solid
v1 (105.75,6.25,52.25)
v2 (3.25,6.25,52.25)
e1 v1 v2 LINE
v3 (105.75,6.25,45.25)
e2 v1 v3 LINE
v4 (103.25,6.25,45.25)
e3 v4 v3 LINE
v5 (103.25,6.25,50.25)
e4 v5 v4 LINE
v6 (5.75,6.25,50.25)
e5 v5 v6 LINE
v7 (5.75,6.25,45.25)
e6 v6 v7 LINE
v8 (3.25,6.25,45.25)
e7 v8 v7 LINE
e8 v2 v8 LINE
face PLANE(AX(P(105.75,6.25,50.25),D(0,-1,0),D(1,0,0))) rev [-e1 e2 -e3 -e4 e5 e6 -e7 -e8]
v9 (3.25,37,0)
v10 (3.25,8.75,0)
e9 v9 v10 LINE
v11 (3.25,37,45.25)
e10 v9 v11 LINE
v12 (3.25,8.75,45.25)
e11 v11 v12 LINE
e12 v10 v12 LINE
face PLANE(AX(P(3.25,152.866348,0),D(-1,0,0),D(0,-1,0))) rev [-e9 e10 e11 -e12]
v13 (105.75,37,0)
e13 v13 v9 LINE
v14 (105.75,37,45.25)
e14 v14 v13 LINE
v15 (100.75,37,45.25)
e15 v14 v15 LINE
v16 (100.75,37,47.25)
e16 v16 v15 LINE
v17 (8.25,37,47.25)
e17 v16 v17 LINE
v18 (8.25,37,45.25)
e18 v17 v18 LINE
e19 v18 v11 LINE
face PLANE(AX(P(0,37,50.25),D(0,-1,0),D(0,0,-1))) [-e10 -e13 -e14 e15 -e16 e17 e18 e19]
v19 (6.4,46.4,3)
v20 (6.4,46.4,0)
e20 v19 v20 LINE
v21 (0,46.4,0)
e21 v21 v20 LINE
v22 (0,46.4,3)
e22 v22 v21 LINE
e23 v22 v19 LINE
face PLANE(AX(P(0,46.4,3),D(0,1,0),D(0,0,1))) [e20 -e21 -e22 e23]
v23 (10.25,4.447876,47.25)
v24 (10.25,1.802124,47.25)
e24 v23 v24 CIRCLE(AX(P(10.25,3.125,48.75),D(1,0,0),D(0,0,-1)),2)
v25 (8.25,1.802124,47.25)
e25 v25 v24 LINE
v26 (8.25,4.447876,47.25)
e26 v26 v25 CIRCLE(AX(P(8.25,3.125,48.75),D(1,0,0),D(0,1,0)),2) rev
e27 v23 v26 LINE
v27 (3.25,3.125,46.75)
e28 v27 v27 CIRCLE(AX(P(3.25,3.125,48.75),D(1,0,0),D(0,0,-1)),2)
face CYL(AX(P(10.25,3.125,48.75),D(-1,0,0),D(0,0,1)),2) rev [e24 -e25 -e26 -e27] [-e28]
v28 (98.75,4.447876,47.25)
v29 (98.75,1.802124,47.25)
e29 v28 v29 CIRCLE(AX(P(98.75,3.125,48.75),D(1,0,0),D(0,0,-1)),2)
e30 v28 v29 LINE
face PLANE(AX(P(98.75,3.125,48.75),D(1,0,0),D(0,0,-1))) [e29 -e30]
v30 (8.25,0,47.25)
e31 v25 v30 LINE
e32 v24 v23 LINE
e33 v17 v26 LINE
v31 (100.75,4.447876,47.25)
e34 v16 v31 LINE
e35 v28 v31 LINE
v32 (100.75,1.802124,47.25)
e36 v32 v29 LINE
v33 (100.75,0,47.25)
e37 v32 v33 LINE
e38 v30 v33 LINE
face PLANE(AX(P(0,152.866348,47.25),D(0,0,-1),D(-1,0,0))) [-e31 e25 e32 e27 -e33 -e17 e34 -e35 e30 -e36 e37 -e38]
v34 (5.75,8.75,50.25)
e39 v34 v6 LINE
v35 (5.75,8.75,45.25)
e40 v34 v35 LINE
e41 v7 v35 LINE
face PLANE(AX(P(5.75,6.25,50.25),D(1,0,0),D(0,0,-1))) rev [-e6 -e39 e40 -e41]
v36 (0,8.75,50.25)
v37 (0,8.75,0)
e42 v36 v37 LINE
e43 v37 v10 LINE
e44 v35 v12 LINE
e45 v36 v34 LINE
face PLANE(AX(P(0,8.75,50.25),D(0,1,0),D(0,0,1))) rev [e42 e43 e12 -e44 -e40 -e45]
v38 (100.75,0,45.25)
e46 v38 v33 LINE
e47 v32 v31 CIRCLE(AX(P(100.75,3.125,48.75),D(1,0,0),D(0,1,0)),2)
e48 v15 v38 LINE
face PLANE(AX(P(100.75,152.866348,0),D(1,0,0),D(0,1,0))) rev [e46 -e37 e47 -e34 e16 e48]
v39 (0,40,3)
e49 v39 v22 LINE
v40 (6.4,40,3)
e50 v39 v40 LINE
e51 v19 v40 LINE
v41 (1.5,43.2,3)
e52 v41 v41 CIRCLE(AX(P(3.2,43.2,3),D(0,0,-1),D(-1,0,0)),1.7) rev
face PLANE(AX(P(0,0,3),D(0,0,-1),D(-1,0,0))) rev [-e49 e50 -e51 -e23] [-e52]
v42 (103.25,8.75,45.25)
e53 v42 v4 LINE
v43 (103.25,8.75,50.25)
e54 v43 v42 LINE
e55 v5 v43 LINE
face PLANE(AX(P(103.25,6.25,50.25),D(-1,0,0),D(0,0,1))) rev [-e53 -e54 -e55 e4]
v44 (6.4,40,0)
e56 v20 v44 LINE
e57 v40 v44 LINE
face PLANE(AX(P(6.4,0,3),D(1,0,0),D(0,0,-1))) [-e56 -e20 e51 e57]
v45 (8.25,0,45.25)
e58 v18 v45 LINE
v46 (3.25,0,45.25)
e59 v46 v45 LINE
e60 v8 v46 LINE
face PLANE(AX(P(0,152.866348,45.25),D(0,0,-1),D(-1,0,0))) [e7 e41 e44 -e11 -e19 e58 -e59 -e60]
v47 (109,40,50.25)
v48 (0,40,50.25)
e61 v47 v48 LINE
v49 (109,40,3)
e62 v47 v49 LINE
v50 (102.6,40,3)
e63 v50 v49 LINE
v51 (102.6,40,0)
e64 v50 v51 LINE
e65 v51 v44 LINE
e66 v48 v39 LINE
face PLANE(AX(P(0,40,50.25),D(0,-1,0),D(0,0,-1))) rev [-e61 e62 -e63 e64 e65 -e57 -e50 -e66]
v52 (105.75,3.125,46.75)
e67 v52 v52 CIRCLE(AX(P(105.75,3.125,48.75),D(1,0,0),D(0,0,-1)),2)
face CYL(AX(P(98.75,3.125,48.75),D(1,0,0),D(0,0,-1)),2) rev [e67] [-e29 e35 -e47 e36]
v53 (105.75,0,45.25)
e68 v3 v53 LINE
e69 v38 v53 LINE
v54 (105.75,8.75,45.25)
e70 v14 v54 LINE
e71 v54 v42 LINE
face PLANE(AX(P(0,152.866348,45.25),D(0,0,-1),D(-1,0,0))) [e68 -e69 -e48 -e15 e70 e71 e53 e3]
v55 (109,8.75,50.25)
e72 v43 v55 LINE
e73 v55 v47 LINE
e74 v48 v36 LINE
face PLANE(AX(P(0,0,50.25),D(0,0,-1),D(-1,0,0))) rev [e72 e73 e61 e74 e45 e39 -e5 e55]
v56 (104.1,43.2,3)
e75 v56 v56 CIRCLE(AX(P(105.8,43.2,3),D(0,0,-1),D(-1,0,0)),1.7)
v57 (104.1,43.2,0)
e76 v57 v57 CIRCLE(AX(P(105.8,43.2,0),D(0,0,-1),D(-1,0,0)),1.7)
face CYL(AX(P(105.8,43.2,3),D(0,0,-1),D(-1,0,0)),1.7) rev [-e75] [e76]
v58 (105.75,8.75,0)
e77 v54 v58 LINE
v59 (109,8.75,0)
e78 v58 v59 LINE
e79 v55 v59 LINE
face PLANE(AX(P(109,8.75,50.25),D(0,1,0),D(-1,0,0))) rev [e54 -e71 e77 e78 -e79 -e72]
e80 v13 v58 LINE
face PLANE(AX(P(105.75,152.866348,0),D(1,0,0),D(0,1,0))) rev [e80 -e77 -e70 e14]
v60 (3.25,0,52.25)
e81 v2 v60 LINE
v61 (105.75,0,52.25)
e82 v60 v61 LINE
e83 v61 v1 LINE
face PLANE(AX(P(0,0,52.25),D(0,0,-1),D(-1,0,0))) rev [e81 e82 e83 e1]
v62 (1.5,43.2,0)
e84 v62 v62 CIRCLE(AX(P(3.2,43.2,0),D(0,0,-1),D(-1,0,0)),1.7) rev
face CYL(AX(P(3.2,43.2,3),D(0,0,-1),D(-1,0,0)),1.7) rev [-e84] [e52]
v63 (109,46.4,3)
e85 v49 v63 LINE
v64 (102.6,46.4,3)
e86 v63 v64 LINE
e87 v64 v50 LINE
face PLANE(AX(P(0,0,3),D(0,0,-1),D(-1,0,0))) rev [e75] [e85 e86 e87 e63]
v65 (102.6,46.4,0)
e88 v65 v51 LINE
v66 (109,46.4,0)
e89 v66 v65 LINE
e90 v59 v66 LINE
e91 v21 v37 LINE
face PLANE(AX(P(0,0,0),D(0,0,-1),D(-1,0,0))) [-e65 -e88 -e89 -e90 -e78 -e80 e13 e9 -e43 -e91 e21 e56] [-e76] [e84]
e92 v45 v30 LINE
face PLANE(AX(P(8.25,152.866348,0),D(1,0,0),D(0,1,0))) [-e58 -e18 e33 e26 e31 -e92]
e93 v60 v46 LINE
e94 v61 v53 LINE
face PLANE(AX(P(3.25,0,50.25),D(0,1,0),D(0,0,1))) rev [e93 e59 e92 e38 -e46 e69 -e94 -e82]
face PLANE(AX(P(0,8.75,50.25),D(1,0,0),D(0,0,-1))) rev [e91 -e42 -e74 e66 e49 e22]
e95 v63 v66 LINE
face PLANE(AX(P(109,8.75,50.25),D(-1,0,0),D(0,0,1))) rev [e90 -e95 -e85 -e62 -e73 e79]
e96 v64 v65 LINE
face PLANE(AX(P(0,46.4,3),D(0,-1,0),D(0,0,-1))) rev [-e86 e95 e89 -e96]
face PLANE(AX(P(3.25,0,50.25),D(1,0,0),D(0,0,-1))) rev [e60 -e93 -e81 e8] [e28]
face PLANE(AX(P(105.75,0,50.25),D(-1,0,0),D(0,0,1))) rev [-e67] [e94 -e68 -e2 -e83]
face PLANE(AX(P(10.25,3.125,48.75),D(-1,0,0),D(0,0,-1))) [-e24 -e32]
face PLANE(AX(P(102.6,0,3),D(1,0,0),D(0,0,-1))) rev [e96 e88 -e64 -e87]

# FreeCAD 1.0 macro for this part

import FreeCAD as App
import Part
import Sketcher
from FreeCAD import Vector


def add_polygon(sketch, points):
    """Adds a closed chain of lines whose ends are joined by coincident constraints."""
    first, n = sketch.GeometryCount, len(points)
    for a, b in zip(points, points[1:] + points[:1]):
        sketch.addGeometry(Part.LineSegment(App.Vector(*a, 0), App.Vector(*b, 0)), False)
    for i in range(n):
        sketch.addConstraint(Sketcher.Constraint("Coincident", first + i, 2, first + (i + 1) % n, 1))

doc = App.newDocument("Part")
body = doc.addObject("PartDesign::Body", "Body")

# Sketch on XY plane
sketch1 = body.newObject("Sketcher::SketchObject", "Sketch")
sketch1.AttachmentSupport = (doc.getObject("XY_Plane"), [""])
sketch1.MapMode = "FlatFace"
add_polygon(sketch1, [(3.2, 0), (105.8, 0), (105.8, 6.2), (103.2, 6.2), (103.2, 8.8), (109, 8.8), (109, 40), (0, 40), (0, 8.8), (5.8, 8.8), (5.8, 6.2), (3.2, 6.2)])  # lines 0-11
sketch1.addConstraint([
    Sketcher.Constraint("Horizontal", 0),
    Sketcher.Constraint("Vertical", 1),
    Sketcher.Constraint("Horizontal", 2),
    Sketcher.Constraint("Vertical", 3),
    Sketcher.Constraint("Horizontal", 4),
    Sketcher.Constraint("Vertical", 5),
    Sketcher.Constraint("Horizontal", 6),
    Sketcher.Constraint("Vertical", 7),
    Sketcher.Constraint("Horizontal", 8),
    Sketcher.Constraint("Vertical", 9),
    Sketcher.Constraint("Horizontal", 10),
    Sketcher.Constraint("Vertical", 11),
    Sketcher.Constraint("PointOnObject", 0, 2, -1),
    Sketcher.Constraint("PointOnObject", 6, 2, -2),
    Sketcher.Constraint("Horizontal", 4, 2, 7, 2),
    Sketcher.Constraint("Horizontal", 2, 2, 9, 2),
    Sketcher.Constraint("Equal", 4, 8),
    Sketcher.Constraint("Equal", 2, 10),
    Sketcher.Constraint("Equal", 10, 3),
    Sketcher.Constraint("DistanceX", 6, 2, 6, 1, 109.0),
    Sketcher.Constraint("DistanceX", 0, 1, 0, 2, 102.5),
    Sketcher.Constraint("DistanceX", 2, 2, 2, 1, 2.5),
    Sketcher.Constraint("DistanceY", -1, 1, 5, 2, 40.0),
    Sketcher.Constraint("DistanceY", 1, 1, 1, 2, 6.25),
])
pad1 = body.newObject("PartDesign::Pad", "Pad")
pad1.Profile = sketch1
pad1.Length = 50.25

# Sketch on XZ plane
sketch2 = body.newObject("Sketcher::SketchObject", "Sketch001")
sketch2.AttachmentSupport = (doc.getObject("XZ_Plane"), [""])
sketch2.MapMode = "FlatFace"
add_polygon(sketch2, [(3.2, 0), (105.8, 0), (105.8, 45.2), (100.8, 45.2), (100.8, 47.2), (8.2, 47.2), (8.2, 45.2), (3.2, 45.2)])  # lines 0-7
sketch2.addConstraint([
    Sketcher.Constraint("Horizontal", 0),
    Sketcher.Constraint("Vertical", 1),
    Sketcher.Constraint("Horizontal", 2),
    Sketcher.Constraint("Vertical", 3),
    Sketcher.Constraint("Horizontal", 4),
    Sketcher.Constraint("Vertical", 5),
    Sketcher.Constraint("Horizontal", 6),
    Sketcher.Constraint("Vertical", 7),
    Sketcher.Constraint("PointOnObject", 0, 2, -1),
    Sketcher.Constraint("Horizontal", 2, 2, 5, 2),
    Sketcher.Constraint("Equal", 2, 6),
    Sketcher.Constraint("DistanceX", 2, 2, 2, 1, 5.0),
    Sketcher.Constraint("DistanceY", 3, 1, 3, 2, 2.0),
    Sketcher.Constraint("DistanceX", 0, 1, 0, 2, 102.5),
    Sketcher.Constraint("DistanceY", 1, 1, 1, 2, 45.25),
    Sketcher.Constraint("DistanceX", -1, 1, 0, 2, 105.75),
])
pocket1 = body.newObject("PartDesign::Pocket", "Pocket")
pocket1.Profile = sketch2
pocket1.Length = 37

# Sketch on XY plane
sketch3 = body.newObject("Sketcher::SketchObject", "Sketch002")
sketch3.AttachmentSupport = (doc.getObject("XY_Plane"), [""])
sketch3.MapMode = "FlatFace"
add_polygon(sketch3, [(109, 46.4), (109, 40), (102.6, 40), (102.6, 46.4)])  # lines 0-3
sketch3.addGeometry(Part.Circle(Vector(105.8, 43.2, 0), Vector(0, 0, 1), 1.7), False)  # 4
add_polygon(sketch3, [(6.4, 46.4), (6.4, 40), (0, 40), (0, 46.4)])  # lines 5-8
sketch3.addGeometry(Part.Circle(Vector(3.2, 43.2, 0), Vector(0, 0, 1), 1.7), False)  # 9
sketch3.addConstraint([
    Sketcher.Constraint("Vertical", 0),
    Sketcher.Constraint("Horizontal", 1),
    Sketcher.Constraint("Vertical", 2),
    Sketcher.Constraint("Horizontal", 3),
    Sketcher.Constraint("Vertical", 5),
    Sketcher.Constraint("Horizontal", 6),
    Sketcher.Constraint("Vertical", 7),
    Sketcher.Constraint("Horizontal", 8),
    Sketcher.Constraint("Equal", 4, 9),
    Sketcher.Constraint("PointOnObject", 6, 2, -2),
    Sketcher.Constraint("Horizontal", 4, 3, 9, 3),
    Sketcher.Constraint("Horizontal", 1, 2, 5, 2),
    Sketcher.Constraint("Horizontal", 3, 2, 7, 2),
    Sketcher.Constraint("Equal", 3, 6),
    Sketcher.Constraint("Equal", 8, 0),
    Sketcher.Constraint("Diameter", 4, 3.4),
    Sketcher.Constraint("DistanceX", 1, 2, 1, 1, 6.4),
    Sketcher.Constraint("DistanceX", -1, 1, 0, 2, 109.0),
    Sketcher.Constraint("DistanceY", -1, 1, 0, 2, 40.0),
    Sketcher.Constraint("DistanceX", -1, 1, 4, 3, 105.8),
    Sketcher.Constraint("DistanceY", -1, 1, 4, 3, 43.2),
    Sketcher.Constraint("DistanceX", -1, 1, 9, 3, 3.2),
])
pad2 = body.newObject("PartDesign::Pad", "Pad001")
pad2.Profile = sketch3
pad2.Length = 3

# Sketch on XY plane
sketch4 = body.newObject("Sketcher::SketchObject", "Sketch003")
sketch4.AttachmentSupport = (doc.getObject("XY_Plane"), [""])
sketch4.MapMode = "FlatFace"
sketch4.AttachmentOffset = App.Placement(Vector(0, 0, 50.25), App.Rotation())
add_polygon(sketch4, [(3, 6), (3, 0), (106, 0), (106, 6)])  # lines 0-3
sketch4.addConstraint([
    Sketcher.Constraint("Vertical", 0),
    Sketcher.Constraint("Horizontal", 1),
    Sketcher.Constraint("Vertical", 2),
    Sketcher.Constraint("Horizontal", 3),
    Sketcher.Constraint("PointOnObject", 0, 2, -1),
    Sketcher.Constraint("DistanceX", 1, 1, 1, 2, 102.5),
    Sketcher.Constraint("DistanceY", 0, 2, 0, 1, 6.25),
    Sketcher.Constraint("DistanceX", -1, 1, 0, 2, 3.25),
])
pad3 = body.newObject("PartDesign::Pad", "Pad002")
pad3.Profile = sketch4
pad3.Length = 2

# Sketch on YZ plane
sketch5 = body.newObject("Sketcher::SketchObject", "Sketch004")
sketch5.AttachmentSupport = (doc.getObject("YZ_Plane"), [""])
sketch5.MapMode = "FlatFace"
sketch5.AttachmentOffset = App.Placement(Vector(0, 0, 105.75), App.Rotation())
sketch5.addGeometry(Part.Circle(Vector(3.1, 48.8, 0), Vector(0, 0, 1), 2), False)
sketch5.addConstraint([
    Sketcher.Constraint("Diameter", 0, 4.0),
    Sketcher.Constraint("DistanceY", -1, 1, 0, 3, 48.75),
    Sketcher.Constraint("DistanceX", -1, 1, 0, 3, 3.125),
])
pocket2 = body.newObject("PartDesign::Pocket", "Pocket001")
pocket2.Profile = sketch5
pocket2.Length = 7
doc.recompute()

datumplane = body.newObject("PartDesign::Plane", "DatumPlane")
datumplane.AttachmentSupport = (doc.getObject("YZ_Plane"), [""])
datumplane.MapMode = "FlatFace"
datumplane.AttachmentOffset = App.Placement(Vector(0, 0, 54.5), App.Rotation())
mirrored = body.newObject("PartDesign::Mirrored", "Mirrored")
mirrored.Originals = [pocket2]
mirrored.MirrorPlane = (datumplane, [""])
body.Tip = mirrored

doc.recompute()
